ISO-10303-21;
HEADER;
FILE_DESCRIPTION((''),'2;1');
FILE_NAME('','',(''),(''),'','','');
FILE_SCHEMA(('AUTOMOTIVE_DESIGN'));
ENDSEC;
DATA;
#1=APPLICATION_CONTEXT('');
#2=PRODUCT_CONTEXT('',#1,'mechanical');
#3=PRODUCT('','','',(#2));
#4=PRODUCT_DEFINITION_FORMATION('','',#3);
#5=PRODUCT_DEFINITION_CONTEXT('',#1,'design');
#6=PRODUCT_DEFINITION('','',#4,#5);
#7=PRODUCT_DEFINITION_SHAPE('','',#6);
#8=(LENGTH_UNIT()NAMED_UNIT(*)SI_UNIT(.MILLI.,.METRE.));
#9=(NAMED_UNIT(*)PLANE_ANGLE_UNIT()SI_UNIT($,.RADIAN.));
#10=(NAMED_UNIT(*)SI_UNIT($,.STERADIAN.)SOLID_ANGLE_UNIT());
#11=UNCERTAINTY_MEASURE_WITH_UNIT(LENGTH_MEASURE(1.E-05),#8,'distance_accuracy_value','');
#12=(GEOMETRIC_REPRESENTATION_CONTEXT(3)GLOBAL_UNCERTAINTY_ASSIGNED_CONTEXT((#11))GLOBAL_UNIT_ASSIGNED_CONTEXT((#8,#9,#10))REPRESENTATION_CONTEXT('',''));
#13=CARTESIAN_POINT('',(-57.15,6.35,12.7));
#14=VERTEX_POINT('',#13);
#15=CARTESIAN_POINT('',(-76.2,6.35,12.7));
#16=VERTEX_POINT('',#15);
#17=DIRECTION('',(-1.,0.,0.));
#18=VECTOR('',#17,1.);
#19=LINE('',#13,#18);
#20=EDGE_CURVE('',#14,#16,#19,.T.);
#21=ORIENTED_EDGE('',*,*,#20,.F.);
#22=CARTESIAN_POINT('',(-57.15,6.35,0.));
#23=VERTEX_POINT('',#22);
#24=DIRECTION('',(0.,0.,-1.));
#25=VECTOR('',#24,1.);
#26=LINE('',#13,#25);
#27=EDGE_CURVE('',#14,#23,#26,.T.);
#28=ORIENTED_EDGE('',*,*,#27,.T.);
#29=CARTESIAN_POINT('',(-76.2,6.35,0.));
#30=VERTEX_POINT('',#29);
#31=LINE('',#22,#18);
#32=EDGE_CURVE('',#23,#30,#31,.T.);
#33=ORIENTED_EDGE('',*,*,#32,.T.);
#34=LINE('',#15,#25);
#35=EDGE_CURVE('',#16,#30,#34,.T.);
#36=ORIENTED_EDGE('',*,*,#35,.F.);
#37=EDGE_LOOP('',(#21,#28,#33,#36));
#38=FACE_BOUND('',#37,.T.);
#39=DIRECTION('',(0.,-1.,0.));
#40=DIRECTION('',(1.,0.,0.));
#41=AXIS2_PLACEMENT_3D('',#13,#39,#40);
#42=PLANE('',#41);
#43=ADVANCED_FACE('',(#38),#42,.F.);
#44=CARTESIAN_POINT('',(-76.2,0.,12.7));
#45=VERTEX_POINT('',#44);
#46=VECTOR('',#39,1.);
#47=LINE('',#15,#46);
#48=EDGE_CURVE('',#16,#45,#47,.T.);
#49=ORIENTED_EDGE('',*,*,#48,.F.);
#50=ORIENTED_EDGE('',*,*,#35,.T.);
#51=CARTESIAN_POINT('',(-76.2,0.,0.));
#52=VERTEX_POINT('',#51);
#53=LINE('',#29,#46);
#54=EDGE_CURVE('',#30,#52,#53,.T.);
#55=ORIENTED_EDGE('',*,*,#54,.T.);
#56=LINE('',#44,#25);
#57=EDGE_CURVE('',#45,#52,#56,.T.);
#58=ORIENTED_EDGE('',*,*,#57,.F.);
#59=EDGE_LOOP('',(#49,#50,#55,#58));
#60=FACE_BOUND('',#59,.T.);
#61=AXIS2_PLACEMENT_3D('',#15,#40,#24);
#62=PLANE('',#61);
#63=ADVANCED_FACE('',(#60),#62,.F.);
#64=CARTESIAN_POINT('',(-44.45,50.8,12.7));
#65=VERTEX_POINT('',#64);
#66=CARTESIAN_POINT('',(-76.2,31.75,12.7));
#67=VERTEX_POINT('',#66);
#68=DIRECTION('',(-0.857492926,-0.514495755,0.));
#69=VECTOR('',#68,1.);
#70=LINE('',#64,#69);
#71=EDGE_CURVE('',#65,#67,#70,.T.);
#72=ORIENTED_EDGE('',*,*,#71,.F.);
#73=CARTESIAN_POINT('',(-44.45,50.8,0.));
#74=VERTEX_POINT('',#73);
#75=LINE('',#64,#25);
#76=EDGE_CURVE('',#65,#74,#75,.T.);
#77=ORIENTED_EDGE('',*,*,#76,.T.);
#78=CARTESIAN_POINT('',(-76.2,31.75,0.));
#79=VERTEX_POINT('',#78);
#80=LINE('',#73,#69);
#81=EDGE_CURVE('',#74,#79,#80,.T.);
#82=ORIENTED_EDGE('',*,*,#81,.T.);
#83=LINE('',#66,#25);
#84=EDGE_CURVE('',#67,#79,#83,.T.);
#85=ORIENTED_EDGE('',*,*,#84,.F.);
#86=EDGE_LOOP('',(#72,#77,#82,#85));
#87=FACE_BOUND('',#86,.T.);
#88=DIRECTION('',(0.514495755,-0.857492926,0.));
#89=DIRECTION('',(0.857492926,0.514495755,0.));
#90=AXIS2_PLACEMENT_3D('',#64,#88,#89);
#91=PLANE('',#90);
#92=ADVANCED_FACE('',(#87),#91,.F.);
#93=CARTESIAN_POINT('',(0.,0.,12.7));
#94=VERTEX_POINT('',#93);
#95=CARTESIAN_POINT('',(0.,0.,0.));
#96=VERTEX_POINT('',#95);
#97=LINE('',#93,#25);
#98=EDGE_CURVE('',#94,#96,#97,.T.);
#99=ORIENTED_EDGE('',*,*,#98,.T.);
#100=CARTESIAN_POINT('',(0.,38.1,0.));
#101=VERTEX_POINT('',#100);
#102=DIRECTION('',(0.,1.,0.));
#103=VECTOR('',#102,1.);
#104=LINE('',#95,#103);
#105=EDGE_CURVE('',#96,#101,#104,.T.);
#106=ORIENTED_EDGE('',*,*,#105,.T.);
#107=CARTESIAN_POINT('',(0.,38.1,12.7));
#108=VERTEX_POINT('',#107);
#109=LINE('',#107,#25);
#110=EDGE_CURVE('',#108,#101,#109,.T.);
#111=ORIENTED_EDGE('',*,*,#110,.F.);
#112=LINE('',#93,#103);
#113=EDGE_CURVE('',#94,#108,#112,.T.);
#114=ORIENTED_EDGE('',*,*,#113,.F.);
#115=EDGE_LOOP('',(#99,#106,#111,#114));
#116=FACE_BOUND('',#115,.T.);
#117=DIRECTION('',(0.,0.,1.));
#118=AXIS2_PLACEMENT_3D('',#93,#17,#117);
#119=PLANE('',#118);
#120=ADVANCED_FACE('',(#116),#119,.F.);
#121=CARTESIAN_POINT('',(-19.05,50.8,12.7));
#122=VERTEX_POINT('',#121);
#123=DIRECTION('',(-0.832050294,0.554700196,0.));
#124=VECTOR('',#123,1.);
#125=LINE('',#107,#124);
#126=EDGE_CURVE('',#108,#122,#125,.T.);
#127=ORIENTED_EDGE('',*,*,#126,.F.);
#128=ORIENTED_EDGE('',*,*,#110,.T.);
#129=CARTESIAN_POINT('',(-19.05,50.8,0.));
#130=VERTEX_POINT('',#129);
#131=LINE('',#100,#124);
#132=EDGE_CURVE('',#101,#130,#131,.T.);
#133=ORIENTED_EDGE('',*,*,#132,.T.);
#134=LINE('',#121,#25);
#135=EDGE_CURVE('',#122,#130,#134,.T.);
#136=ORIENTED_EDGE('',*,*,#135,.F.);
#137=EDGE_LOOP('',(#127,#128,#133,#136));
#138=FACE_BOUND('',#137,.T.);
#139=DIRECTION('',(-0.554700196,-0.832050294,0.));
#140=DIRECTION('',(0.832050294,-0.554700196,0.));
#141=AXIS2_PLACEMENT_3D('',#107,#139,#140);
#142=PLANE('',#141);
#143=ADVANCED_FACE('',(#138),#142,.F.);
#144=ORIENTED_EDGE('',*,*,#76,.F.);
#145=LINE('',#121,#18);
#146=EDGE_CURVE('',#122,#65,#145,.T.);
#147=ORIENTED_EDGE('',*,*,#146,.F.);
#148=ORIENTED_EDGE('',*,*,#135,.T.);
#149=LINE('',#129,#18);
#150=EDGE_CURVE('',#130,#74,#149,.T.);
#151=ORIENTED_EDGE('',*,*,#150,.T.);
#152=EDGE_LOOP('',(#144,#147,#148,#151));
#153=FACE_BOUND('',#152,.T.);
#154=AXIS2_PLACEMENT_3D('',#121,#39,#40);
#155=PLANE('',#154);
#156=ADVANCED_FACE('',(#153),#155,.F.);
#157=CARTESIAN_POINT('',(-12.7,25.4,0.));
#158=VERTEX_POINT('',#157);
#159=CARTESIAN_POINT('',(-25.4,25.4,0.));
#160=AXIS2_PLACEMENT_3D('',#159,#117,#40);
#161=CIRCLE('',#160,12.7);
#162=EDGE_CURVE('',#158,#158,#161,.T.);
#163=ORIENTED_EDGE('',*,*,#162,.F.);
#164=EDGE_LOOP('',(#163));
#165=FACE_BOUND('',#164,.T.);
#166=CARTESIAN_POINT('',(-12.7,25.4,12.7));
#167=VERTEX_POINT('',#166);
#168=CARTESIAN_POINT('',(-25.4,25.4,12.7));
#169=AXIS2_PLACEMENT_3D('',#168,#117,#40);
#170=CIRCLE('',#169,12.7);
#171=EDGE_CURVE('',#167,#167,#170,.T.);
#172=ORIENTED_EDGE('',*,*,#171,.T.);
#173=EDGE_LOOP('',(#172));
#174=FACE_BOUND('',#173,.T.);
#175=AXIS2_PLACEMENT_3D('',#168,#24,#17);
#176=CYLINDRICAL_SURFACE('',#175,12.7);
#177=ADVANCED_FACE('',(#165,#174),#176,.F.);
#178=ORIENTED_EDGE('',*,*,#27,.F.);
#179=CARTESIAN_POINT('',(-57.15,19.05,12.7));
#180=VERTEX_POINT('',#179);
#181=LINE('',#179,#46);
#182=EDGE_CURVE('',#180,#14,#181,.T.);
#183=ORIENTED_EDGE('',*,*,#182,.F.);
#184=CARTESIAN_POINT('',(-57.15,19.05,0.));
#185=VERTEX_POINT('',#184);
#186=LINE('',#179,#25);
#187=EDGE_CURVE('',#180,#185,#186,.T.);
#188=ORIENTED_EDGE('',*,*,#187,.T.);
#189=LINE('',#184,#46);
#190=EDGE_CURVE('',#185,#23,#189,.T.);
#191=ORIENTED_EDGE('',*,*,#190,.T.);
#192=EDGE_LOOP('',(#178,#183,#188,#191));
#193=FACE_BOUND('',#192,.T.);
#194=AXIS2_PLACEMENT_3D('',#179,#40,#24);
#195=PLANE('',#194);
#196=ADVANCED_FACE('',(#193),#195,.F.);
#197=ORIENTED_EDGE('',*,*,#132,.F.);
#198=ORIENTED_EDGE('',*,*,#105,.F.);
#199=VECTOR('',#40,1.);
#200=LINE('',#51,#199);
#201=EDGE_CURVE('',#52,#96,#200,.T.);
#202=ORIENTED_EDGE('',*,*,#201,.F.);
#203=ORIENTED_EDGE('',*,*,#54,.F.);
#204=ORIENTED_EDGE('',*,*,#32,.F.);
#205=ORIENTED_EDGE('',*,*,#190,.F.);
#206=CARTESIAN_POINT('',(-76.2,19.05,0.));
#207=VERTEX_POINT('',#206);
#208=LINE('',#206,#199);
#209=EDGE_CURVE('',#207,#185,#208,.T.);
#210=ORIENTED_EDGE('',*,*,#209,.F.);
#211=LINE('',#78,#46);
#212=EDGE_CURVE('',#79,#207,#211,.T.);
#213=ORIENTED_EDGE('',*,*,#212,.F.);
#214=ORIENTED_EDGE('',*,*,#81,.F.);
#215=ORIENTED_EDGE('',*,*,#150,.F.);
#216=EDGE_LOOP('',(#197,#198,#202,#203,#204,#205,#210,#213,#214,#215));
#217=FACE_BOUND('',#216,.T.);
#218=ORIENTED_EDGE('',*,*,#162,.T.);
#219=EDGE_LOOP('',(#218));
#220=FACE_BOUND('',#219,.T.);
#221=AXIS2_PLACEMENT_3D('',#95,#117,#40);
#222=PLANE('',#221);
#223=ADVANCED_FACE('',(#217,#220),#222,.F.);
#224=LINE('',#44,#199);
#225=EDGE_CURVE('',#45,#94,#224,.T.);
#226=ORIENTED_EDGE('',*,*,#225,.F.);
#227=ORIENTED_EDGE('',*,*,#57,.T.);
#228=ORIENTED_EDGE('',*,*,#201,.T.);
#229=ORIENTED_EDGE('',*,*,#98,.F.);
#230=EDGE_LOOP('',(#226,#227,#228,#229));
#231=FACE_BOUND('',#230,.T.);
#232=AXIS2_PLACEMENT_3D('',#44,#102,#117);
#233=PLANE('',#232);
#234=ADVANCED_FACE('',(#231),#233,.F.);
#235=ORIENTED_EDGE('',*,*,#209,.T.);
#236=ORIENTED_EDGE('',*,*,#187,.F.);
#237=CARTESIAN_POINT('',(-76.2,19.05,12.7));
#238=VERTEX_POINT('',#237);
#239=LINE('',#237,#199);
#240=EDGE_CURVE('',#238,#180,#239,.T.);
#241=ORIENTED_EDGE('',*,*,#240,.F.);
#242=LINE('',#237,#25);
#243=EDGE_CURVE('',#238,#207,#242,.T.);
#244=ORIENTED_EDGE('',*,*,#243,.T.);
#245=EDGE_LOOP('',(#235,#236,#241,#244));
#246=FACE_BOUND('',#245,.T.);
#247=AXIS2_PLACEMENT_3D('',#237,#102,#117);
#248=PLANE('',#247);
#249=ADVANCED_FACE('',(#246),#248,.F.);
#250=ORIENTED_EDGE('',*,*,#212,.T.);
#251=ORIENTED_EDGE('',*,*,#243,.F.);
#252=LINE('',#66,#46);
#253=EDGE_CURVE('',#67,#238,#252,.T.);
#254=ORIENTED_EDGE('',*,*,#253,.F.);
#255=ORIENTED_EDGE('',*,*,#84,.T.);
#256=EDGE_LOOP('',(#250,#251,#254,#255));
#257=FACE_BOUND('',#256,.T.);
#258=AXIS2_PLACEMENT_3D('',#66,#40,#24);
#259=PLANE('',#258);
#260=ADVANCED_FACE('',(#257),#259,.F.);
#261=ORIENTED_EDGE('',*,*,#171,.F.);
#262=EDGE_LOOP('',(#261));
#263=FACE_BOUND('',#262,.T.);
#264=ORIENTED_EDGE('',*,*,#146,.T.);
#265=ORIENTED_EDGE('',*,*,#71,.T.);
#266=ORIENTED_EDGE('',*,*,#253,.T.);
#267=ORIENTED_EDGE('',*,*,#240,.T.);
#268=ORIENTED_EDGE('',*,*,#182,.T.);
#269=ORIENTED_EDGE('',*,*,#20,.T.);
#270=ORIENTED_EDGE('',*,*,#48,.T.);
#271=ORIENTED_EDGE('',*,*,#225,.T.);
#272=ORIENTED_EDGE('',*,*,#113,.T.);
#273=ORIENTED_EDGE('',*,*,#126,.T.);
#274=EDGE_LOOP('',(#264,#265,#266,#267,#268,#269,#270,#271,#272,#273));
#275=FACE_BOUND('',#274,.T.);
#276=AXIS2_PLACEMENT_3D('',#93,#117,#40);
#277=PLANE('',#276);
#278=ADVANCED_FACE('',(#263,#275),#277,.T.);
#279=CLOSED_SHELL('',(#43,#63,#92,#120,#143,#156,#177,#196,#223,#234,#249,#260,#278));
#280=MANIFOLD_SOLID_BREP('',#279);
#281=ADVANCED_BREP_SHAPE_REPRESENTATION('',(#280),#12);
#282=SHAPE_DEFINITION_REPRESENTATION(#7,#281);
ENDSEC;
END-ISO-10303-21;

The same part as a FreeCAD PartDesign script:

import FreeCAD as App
import Part
import Sketcher
Q = App.Units.Quantity


def add_polygon(sketch, points):
    """Adds a closed chain of lines whose ends are joined by coincident constraints."""
    first, n = sketch.GeometryCount, len(points)
    for a, b in zip(points, points[1:] + points[:1]):
        sketch.addGeometry(Part.LineSegment(App.Vector(*a, 0), App.Vector(*b, 0)), False)
    for i in range(n):
        sketch.addConstraint(Sketcher.Constraint("Coincident", first + i, 2, first + (i + 1) % n, 1))

doc = App.newDocument("Part")
body = doc.addObject("PartDesign::Body", "Body")

sketch1 = body.newObject("Sketcher::SketchObject", "Sketch")
sketch1.AttachmentSupport = (doc.getObject("XY_Plane"), [""])
sketch1.MapMode = "FlatFace"
add_polygon(sketch1, [(0, 0), (0, 38), (-19, 51), (-44, 51), (-76, 32), (-76, 19), (-57, 19), (-57, 6), (-76, 6), (-76, 0)])
sketch1.addGeometry(Part.Circle(App.Vector(-25, 25, 0), App.Vector(0, 0, 1), 13), False)
sketch1.addConstraint([
    Sketcher.Constraint("Vertical", 0),
    Sketcher.Constraint("Horizontal", 2),
    Sketcher.Constraint("Vertical", 4),
    Sketcher.Constraint("Horizontal", 5),
    Sketcher.Constraint("Vertical", 6),
    Sketcher.Constraint("Horizontal", 7),
    Sketcher.Constraint("Vertical", 8),
    Sketcher.Constraint("Horizontal", 9),
    Sketcher.Constraint("Coincident", 9, 2, -1, 1),
    Sketcher.Constraint("Vertical", 4, 2, 7, 2),
    Sketcher.Constraint("Equal", 4, 6),
    Sketcher.Constraint("Diameter", 10, Q("1 in")),
    Sketcher.Constraint("DistanceX", 2, 2, 2, 1, Q("1 in")),
    Sketcher.Constraint("DistanceX", 9, 1, 9, 2, Q("3 in")),
    Sketcher.Constraint("DistanceY", 0, 1, 0, 2, Q("1.5 in")),
    Sketcher.Constraint("DistanceY", 4, 2, 4, 1, Q("0.5 in")),
    Sketcher.Constraint("DistanceX", 10, 3, -1, 1, Q("1 in")),
    Sketcher.Constraint("DistanceY", -1, 1, 10, 3, Q("1 in")),
    Sketcher.Constraint("DistanceY", -1, 1, 1, 2, Q("2 in")),
    Sketcher.Constraint("DistanceX", 5, 1, 5, 2, Q("0.75 in")),
    Sketcher.Constraint("DistanceY", 8, 2, 8, 1, Q("0.25 in")),
    Sketcher.Constraint("DistanceX", 5, 2, 2, 2, Q("0.5 in")),
])
pad1 = body.newObject("PartDesign::Pad", "Pad")
pad1.Profile = sketch1
pad1.Length = Q("0.5 in")

doc.recompute()
